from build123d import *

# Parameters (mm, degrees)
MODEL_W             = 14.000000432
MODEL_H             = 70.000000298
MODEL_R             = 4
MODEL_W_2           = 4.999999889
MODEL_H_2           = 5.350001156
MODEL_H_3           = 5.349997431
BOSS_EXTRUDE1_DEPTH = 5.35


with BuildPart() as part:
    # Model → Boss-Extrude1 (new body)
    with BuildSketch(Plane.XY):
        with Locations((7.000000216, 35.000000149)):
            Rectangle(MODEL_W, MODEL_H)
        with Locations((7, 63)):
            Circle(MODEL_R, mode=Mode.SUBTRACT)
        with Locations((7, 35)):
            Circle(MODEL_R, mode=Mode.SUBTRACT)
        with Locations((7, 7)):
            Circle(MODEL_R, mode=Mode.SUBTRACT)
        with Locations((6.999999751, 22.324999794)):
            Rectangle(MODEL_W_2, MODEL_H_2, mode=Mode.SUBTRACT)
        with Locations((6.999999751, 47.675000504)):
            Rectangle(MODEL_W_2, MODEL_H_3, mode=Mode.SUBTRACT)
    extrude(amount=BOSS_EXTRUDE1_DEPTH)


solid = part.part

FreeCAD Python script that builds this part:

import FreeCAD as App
import Part
import Sketcher

V = App.Vector
Q = App.Units.Quantity


def add_polygon(sketch, points):
    """Adds a closed chain of lines whose ends are joined by coincident constraints."""
    first, n = sketch.GeometryCount, len(points)
    for a, b in zip(points, points[1:] + points[:1]):
        sketch.addGeometry(Part.LineSegment(App.Vector(*a, 0), App.Vector(*b, 0)), False)
    for i in range(n):
        sketch.addConstraint(Sketcher.Constraint("Coincident", first + i, 2, first + (i + 1) % n, 1))

doc = App.newDocument("Part")
body = doc.addObject("PartDesign::Body", "Body")

# Sketch on XY plane
sketch1 = body.newObject("Sketcher::SketchObject", "Sketch")
sketch1.AttachmentSupport = (doc.getObject("XY_Plane"), [""])
sketch1.MapMode = "FlatFace"
add_polygon(sketch1, [(0, 70), (0, 0), (14, 0), (14, 70)])  # lines 0-3
add_polygon(sketch1, [(9.5, 19.649999), (4.5, 19.649999), (4.5, 25), (9.5, 25)])  # lines 4-7
sketch1.addGeometry(Part.Circle(V(7, 7, 0), V(0, 0, 1), 4), False)  # 8
add_polygon(sketch1, [(9.5, 45.000002), (4.5, 45.000002), (4.5, 50.349999), (9.5, 50.349999)])  # lines 9-12
sketch1.addGeometry(Part.Circle(V(7, 35, 0), V(0, 0, 1), 4), False)  # 13
sketch1.addGeometry(Part.Circle(V(7, 63, 0), V(0, 0, 1), 4), False)  # 14
sketch1.addConstraint(Sketcher.Constraint("Vertical", 0))
sketch1.addConstraint(Sketcher.Constraint("Horizontal", 1))
sketch1.addConstraint(Sketcher.Constraint("Vertical", 2))
sketch1.addConstraint(Sketcher.Constraint("Horizontal", 3))
sketch1.addConstraint(Sketcher.Constraint("Horizontal", 4))
sketch1.addConstraint(Sketcher.Constraint("Vertical", 5))
sketch1.addConstraint(Sketcher.Constraint("Horizontal", 6))
sketch1.addConstraint(Sketcher.Constraint("Vertical", 7))
sketch1.addConstraint(Sketcher.Constraint("Horizontal", 9))
sketch1.addConstraint(Sketcher.Constraint("Vertical", 10))
sketch1.addConstraint(Sketcher.Constraint("Horizontal", 11))
sketch1.addConstraint(Sketcher.Constraint("Vertical", 12))
sketch1.addConstraint(Sketcher.Constraint("Coincident", 0, 2, -1, 1))
sketch1.addConstraint(Sketcher.Constraint("Equal", 8, 13))
sketch1.addConstraint(Sketcher.Constraint("Equal", 13, 14))
sketch1.addConstraint(Sketcher.Constraint("Vertical", 8, 3, 13, 3))
sketch1.addConstraint(Sketcher.Constraint("Vertical", 13, 3, 14, 3))
sketch1.addConstraint(Sketcher.Constraint("Vertical", 5, 2, 9, 2))
sketch1.addConstraint(Sketcher.Constraint("Vertical", 7, 2, 11, 2))
sketch1.addConstraint(Sketcher.Constraint("Diameter", 8, Q("8 mm")))
sketch1.addConstraint(Sketcher.Constraint("DistanceX", 1, 1, 1, 2, Q("14 mm")))
sketch1.addConstraint(Sketcher.Constraint("DistanceX", 4, 2, 4, 1, Q("5 mm")))
sketch1.addConstraint(Sketcher.Constraint("DistanceY", 0, 2, 0, 1, Q("70 mm")))
sketch1.addConstraint(Sketcher.Constraint("DistanceX", -1, 1, 8, 3, Q("7 mm")))
sketch1.addConstraint(Sketcher.Constraint("DistanceY", -1, 1, 8, 3, Q("7 mm")))
sketch1.addConstraint(Sketcher.Constraint("DistanceY", -1, 1, 13, 3, Q("35 mm")))
sketch1.addConstraint(Sketcher.Constraint("DistanceY", -1, 1, 14, 3, Q("63 mm")))
sketch1.addConstraint(Sketcher.Constraint("DistanceY", -1, 1, 5, 2, Q("25 mm")))
sketch1.addConstraint(Sketcher.Constraint("DistanceY", -1, 1, 9, 2, Q("45.000002 mm")))
sketch1.addConstraint(Sketcher.Constraint("DistanceY", 5, 1, 5, 2, Q("5.350001 mm")))
sketch1.addConstraint(Sketcher.Constraint("DistanceX", -1, 1, 4, 2, Q("4.5 mm")))
sketch1.addConstraint(Sketcher.Constraint("DistanceY", -1, 1, 10, 2, Q("50.349999 mm")))
pad1 = body.newObject("PartDesign::Pad", "Pad")
pad1.Profile = sketch1
pad1.Length = 5.35

doc.recompute()
